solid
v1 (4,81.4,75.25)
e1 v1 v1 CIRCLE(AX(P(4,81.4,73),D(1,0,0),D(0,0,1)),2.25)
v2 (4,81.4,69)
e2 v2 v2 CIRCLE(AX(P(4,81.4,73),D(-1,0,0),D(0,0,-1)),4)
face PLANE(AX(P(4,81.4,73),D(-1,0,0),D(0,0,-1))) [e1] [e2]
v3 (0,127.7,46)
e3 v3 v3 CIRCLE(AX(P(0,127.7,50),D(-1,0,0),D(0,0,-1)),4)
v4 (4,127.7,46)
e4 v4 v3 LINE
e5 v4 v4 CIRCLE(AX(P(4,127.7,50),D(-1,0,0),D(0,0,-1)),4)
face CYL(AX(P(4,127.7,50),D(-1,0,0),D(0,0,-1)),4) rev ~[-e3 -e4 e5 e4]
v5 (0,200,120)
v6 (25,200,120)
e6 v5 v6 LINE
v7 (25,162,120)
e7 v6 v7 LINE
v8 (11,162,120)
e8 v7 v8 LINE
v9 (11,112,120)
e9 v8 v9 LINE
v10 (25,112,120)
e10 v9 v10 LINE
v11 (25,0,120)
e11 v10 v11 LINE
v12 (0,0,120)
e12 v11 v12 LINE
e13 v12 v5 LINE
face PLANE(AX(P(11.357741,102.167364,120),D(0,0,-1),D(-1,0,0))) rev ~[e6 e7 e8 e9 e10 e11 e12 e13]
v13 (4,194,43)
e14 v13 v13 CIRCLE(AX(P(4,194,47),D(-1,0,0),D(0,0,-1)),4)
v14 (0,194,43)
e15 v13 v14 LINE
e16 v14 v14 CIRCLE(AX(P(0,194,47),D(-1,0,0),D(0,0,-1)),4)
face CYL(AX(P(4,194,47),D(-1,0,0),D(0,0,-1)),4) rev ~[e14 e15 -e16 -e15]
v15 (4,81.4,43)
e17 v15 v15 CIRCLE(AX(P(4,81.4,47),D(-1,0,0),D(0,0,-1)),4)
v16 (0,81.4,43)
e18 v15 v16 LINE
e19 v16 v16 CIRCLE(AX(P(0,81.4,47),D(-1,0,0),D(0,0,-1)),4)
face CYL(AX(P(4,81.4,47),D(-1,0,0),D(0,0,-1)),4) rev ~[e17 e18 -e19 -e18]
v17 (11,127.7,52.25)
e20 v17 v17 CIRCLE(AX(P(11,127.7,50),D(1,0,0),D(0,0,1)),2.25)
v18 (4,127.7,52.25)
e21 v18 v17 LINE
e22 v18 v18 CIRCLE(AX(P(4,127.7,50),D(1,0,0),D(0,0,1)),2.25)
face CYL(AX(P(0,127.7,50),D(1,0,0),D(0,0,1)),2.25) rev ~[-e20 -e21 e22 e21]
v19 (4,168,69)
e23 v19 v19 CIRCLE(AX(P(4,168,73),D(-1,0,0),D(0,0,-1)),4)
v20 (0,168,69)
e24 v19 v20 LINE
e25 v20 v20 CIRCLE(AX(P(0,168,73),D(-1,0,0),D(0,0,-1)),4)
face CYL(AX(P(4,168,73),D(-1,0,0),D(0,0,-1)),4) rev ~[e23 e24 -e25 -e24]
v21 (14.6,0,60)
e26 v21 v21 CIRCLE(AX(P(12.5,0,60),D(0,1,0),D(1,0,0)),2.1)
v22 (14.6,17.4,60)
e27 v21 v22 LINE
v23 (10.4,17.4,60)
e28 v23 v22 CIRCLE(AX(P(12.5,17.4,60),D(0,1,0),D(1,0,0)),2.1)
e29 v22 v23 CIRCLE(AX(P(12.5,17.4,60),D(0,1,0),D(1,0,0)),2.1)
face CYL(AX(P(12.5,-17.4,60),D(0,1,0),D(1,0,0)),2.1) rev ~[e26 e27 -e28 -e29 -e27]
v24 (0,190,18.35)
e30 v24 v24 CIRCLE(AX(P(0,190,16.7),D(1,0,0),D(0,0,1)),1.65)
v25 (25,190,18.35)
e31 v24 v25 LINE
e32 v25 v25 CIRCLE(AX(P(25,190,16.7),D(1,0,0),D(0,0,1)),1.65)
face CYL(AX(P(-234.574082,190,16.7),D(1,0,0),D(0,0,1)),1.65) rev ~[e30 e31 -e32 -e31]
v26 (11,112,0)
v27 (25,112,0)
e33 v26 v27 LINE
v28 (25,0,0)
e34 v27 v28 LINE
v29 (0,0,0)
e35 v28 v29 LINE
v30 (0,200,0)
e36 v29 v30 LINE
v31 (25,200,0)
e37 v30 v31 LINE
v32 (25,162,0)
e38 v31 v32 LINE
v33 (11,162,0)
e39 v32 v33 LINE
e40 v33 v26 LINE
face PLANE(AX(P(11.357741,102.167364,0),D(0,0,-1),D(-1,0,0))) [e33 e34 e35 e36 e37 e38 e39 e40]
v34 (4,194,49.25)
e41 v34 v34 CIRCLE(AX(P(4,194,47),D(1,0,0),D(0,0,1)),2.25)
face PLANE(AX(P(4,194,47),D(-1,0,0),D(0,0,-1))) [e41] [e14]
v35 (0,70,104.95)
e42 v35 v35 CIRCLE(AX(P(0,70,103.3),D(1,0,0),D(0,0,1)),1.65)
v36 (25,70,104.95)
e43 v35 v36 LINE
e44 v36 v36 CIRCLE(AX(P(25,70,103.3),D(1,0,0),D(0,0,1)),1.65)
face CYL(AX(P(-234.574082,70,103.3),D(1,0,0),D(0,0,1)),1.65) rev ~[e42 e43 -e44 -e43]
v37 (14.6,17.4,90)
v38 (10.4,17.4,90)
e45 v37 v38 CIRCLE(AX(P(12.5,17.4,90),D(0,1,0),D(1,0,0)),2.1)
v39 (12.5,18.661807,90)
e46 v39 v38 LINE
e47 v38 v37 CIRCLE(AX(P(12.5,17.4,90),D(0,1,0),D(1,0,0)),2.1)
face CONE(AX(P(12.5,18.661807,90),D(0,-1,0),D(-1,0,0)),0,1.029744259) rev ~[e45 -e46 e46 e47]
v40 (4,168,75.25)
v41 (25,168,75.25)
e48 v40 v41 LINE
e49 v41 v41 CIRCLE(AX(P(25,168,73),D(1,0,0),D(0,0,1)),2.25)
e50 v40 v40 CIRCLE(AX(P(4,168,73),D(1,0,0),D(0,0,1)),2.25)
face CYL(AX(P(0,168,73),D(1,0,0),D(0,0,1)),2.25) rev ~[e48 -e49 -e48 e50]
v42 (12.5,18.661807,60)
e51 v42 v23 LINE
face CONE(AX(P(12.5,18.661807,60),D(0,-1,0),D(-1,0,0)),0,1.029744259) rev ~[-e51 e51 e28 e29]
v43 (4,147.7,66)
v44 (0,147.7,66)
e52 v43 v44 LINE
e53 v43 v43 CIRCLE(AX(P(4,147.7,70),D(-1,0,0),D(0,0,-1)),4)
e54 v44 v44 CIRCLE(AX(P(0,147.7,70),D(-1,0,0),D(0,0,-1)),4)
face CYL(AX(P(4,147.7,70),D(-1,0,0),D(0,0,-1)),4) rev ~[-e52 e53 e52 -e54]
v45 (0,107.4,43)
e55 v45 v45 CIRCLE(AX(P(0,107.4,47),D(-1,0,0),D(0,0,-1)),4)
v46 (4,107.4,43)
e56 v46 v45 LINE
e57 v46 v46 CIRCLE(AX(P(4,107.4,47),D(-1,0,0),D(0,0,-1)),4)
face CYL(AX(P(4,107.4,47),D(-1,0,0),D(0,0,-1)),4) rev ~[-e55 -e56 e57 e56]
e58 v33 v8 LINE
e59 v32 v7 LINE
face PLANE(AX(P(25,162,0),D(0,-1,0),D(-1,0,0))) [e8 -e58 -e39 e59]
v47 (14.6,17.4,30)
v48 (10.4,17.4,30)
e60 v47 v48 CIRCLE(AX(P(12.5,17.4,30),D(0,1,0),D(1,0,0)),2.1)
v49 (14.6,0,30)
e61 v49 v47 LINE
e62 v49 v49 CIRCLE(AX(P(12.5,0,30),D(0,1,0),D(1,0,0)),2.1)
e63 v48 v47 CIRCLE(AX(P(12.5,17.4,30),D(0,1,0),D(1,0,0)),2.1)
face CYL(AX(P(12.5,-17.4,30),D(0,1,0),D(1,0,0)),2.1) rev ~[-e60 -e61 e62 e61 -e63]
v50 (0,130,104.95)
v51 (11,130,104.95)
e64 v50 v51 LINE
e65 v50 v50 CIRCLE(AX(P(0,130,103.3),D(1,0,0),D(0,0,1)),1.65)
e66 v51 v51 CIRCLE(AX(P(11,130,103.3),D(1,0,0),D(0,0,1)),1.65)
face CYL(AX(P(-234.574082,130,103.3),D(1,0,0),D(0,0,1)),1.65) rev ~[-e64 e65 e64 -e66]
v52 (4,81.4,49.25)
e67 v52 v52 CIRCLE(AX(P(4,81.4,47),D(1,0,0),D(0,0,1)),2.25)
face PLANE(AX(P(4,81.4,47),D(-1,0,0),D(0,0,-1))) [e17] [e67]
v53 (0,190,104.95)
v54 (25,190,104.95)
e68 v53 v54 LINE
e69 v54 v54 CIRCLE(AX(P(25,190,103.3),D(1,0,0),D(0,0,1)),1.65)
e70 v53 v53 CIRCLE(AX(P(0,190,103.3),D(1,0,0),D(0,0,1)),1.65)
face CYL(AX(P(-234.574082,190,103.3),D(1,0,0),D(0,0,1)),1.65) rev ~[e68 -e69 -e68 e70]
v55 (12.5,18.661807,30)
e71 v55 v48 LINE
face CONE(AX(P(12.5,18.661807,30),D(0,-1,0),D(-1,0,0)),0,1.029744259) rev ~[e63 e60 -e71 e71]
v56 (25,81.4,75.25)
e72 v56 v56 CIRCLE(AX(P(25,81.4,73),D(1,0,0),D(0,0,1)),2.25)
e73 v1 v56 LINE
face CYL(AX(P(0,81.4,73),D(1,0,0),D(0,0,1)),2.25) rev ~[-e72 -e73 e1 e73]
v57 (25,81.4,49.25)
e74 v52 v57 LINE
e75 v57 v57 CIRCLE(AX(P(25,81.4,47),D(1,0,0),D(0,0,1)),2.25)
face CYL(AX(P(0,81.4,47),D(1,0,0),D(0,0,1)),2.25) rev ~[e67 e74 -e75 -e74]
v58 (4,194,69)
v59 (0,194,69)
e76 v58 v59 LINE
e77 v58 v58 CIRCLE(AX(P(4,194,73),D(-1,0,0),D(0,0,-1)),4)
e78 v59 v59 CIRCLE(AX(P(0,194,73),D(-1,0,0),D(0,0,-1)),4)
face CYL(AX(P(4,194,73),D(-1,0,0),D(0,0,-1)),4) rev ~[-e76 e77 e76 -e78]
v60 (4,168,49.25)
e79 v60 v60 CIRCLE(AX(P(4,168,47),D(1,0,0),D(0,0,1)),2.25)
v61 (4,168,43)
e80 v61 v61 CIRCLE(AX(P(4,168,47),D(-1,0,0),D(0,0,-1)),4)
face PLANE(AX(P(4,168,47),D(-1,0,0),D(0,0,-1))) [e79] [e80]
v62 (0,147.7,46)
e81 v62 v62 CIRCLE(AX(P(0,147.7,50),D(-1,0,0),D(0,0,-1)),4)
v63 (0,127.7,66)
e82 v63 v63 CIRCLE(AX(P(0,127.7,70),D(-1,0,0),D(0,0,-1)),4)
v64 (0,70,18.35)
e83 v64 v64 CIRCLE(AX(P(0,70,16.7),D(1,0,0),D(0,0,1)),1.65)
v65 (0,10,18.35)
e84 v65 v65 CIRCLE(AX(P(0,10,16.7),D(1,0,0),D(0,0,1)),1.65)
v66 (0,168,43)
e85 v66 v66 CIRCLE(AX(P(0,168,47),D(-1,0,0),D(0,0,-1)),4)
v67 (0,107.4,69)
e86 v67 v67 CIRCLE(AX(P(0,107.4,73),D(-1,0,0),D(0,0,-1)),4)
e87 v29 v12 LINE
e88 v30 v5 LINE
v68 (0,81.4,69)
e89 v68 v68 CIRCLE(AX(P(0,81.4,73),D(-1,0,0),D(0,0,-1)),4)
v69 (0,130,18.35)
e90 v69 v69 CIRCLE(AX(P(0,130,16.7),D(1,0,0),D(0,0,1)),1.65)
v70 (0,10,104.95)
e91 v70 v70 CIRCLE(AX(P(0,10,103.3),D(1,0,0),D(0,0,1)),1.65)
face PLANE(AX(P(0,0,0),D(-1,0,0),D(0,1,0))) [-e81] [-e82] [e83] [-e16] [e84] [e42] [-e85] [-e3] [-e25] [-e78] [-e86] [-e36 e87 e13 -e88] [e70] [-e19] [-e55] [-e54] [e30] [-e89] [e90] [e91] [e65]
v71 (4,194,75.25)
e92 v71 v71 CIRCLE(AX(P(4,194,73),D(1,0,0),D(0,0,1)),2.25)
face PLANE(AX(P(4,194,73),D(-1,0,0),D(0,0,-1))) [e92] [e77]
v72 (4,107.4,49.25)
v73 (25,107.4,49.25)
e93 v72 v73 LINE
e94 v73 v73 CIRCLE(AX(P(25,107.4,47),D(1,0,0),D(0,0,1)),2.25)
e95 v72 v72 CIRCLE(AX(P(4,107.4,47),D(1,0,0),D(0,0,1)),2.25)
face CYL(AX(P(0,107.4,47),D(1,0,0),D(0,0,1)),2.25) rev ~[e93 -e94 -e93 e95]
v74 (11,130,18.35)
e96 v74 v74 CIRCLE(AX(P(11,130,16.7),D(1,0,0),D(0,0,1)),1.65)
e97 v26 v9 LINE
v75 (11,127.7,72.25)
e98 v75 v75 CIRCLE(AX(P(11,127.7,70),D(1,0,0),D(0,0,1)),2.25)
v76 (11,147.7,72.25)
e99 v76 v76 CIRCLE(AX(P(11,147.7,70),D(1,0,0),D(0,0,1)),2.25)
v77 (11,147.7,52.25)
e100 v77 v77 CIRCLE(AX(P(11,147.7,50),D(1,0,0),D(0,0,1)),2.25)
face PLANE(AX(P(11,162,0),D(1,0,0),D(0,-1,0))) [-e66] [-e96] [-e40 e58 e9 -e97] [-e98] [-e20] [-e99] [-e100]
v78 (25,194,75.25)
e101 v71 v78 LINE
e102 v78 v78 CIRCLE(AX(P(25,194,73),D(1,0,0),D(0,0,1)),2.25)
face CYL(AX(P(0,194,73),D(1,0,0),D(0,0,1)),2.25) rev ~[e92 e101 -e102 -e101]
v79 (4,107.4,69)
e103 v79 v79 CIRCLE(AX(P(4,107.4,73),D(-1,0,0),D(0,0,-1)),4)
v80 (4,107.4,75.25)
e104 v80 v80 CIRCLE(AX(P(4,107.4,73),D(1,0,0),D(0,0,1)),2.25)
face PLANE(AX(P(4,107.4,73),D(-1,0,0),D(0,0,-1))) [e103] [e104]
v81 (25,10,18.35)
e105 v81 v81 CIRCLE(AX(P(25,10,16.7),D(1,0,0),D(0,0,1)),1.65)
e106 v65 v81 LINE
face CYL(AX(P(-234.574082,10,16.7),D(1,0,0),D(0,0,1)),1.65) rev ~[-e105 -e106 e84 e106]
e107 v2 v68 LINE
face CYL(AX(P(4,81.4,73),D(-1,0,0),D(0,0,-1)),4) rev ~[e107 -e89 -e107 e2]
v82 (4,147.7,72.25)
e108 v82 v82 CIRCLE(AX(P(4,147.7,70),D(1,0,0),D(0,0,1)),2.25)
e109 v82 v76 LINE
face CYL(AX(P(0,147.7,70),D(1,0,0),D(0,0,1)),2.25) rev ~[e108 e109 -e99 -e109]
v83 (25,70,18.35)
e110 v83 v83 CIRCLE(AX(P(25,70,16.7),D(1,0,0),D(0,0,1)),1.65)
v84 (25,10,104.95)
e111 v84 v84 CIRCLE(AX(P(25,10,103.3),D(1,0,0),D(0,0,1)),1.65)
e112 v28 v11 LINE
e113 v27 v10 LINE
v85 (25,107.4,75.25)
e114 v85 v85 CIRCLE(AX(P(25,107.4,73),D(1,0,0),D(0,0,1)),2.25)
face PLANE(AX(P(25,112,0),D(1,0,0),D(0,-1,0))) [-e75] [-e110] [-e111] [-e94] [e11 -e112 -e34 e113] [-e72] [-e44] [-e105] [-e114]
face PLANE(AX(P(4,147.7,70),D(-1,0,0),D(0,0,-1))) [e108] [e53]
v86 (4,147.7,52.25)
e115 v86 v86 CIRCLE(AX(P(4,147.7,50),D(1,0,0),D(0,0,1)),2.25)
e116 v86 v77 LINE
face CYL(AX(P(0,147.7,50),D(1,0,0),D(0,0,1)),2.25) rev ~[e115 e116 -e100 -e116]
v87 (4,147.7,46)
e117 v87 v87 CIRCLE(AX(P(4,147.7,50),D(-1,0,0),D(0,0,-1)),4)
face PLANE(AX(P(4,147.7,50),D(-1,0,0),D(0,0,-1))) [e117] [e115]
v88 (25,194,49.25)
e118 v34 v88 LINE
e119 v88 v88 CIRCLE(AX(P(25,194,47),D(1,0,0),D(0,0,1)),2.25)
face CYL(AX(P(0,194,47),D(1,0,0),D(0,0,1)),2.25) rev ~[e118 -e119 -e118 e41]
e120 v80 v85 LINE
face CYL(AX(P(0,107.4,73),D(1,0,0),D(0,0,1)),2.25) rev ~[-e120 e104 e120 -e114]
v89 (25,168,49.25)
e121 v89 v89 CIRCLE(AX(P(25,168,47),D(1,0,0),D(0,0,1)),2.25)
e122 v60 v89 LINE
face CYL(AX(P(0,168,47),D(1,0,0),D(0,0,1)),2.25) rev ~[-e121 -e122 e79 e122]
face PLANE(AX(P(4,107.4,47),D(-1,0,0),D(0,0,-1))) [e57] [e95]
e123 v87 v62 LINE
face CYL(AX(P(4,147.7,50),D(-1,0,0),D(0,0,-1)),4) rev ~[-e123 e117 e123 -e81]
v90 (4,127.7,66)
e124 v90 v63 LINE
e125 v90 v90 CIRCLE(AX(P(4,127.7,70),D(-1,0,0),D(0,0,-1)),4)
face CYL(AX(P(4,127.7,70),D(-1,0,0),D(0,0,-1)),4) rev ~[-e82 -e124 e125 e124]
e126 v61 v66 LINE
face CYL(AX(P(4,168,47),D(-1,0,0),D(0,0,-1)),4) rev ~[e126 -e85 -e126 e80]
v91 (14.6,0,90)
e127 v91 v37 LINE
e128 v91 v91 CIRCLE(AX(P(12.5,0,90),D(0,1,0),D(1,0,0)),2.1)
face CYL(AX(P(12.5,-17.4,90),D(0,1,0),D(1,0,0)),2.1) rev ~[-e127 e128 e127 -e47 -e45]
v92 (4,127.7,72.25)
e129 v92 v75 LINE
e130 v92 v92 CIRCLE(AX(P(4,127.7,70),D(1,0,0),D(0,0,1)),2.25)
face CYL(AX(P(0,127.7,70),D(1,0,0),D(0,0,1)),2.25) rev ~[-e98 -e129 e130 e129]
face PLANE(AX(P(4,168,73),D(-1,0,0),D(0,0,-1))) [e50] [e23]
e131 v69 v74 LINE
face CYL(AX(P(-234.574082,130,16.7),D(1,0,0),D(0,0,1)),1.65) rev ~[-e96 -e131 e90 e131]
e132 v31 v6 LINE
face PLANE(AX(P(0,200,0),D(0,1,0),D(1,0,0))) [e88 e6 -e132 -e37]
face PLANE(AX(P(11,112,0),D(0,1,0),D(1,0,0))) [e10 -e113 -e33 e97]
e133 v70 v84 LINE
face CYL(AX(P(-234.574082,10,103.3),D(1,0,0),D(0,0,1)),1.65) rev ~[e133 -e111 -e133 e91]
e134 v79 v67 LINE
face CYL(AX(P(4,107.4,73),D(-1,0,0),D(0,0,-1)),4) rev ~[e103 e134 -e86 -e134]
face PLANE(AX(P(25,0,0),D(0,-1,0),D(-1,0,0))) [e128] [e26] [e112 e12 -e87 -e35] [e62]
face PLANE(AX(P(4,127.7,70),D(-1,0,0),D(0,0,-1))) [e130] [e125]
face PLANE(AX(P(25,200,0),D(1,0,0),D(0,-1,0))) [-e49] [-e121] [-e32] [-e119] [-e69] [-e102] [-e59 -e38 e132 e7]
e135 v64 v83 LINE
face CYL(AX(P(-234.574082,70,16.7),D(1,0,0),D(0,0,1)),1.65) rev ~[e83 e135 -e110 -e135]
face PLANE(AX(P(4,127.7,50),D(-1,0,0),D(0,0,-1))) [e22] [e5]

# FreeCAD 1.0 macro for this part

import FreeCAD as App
import Part
import Sketcher

V = App.Vector


def add_polygon(sketch, points):
    """Adds a closed chain of lines whose ends are joined by coincident constraints."""
    first, n = sketch.GeometryCount, len(points)
    for a, b in zip(points, points[1:] + points[:1]):
        sketch.addGeometry(Part.LineSegment(App.Vector(*a, 0), App.Vector(*b, 0)), False)
    for i in range(n):
        sketch.addConstraint(Sketcher.Constraint("Coincident", first + i, 2, first + (i + 1) % n, 1))

doc = App.newDocument("Part")
body = doc.addObject("PartDesign::Body", "Body")

# Sketch on XY plane
sketch1 = body.newObject("Sketcher::SketchObject", "Sketch")
sketch1.AttachmentSupport = (doc.getObject("XY_Plane"), [""])
sketch1.MapMode = "FlatFace"
add_polygon(sketch1, [(0, 200), (0, 0), (25, 0), (25, 112), (11, 112), (11, 162), (25, 162), (25, 200)])  # lines 0-7
sketch1.addConstraint([
    Sketcher.Constraint("Vertical", 0),
    Sketcher.Constraint("Horizontal", 1),
    Sketcher.Constraint("Vertical", 2),
    Sketcher.Constraint("Horizontal", 3),
    Sketcher.Constraint("Vertical", 4),
    Sketcher.Constraint("Horizontal", 5),
    Sketcher.Constraint("Vertical", 6),
    Sketcher.Constraint("Horizontal", 7),
    Sketcher.Constraint("Coincident", 0, 2, -1, 1),
    Sketcher.Constraint("Vertical", 2, 2, 5, 2),
    Sketcher.Constraint("DistanceX", 1, 1, 1, 2, 25.0),
    Sketcher.Constraint("DistanceX", 3, 2, 3, 1, 14.0),
    Sketcher.Constraint("DistanceY", 0, 2, 0, 1, 200.0),
    Sketcher.Constraint("DistanceY", 2, 1, 2, 2, 112.0),
    Sketcher.Constraint("DistanceY", 4, 1, 4, 2, 50.0),
])
pad1 = body.newObject("PartDesign::Pad", "Pad")
pad1.Profile = sketch1
pad1.Length = 120

# Sketch on YZ plane
sketch2 = body.newObject("Sketcher::SketchObject", "Sketch001")
sketch2.AttachmentSupport = (doc.getObject("YZ_Plane"), [""])
sketch2.MapMode = "FlatFace"
sketch2.addGeometry([
    Part.Circle(V(194, 73, 0), V(0, 0, 1), 2.2),  # 0
    Part.Circle(V(168, 73, 0), V(0, 0, 1), 2.2),  # 1
    Part.Circle(V(147.7, 70, 0), V(0, 0, 1), 2.2),  # 2
    Part.Circle(V(127.7, 70, 0), V(0, 0, 1), 2.2),  # 3
    Part.Circle(V(107.4, 73, 0), V(0, 0, 1), 2.2),  # 4
    Part.Circle(V(81.4, 73, 0), V(0, 0, 1), 2.2),  # 5
    Part.Circle(V(81.4, 47, 0), V(0, 0, 1), 2.2),  # 6
    Part.Circle(V(107.4, 47, 0), V(0, 0, 1), 2.2),  # 7
    Part.Circle(V(127.7, 50, 0), V(0, 0, 1), 2.2),  # 8
    Part.Circle(V(147.7, 50, 0), V(0, 0, 1), 2.2),  # 9
    Part.Circle(V(168, 47, 0), V(0, 0, 1), 2.2),  # 10
    Part.Circle(V(194, 47, 0), V(0, 0, 1), 2.2),  # 11
], False)
sketch2.addConstraint([
    Sketcher.Constraint("Equal", 0, 1),
    Sketcher.Constraint("Equal", 1, 2),
    Sketcher.Constraint("Equal", 2, 3),
    Sketcher.Constraint("Equal", 3, 4),
    Sketcher.Constraint("Equal", 4, 5),
    Sketcher.Constraint("Equal", 5, 6),
    Sketcher.Constraint("Equal", 6, 7),
    Sketcher.Constraint("Equal", 7, 8),
    Sketcher.Constraint("Equal", 8, 9),
    Sketcher.Constraint("Equal", 9, 10),
    Sketcher.Constraint("Equal", 10, 11),
    Sketcher.Constraint("Horizontal", 0, 3, 1, 3),
    Sketcher.Constraint("Horizontal", 2, 3, 3, 3),
    Sketcher.Constraint("Horizontal", 1, 3, 4, 3),
    Sketcher.Constraint("Horizontal", 4, 3, 5, 3),
    Sketcher.Constraint("Horizontal", 6, 3, 7, 3),
    Sketcher.Constraint("Horizontal", 8, 3, 9, 3),
    Sketcher.Constraint("Horizontal", 7, 3, 10, 3),
    Sketcher.Constraint("Horizontal", 10, 3, 11, 3),
    Sketcher.Constraint("Vertical", 5, 3, 6, 3),
    Sketcher.Constraint("Vertical", 4, 3, 7, 3),
    Sketcher.Constraint("Vertical", 3, 3, 8, 3),
    Sketcher.Constraint("Vertical", 2, 3, 9, 3),
    Sketcher.Constraint("Vertical", 1, 3, 10, 3),
    Sketcher.Constraint("Vertical", 0, 3, 11, 3),
    Sketcher.Constraint("Diameter", 0, 4.5),
    Sketcher.Constraint("DistanceX", -1, 1, 0, 3, 194.0),
    Sketcher.Constraint("DistanceY", -1, 1, 0, 3, 73.0),
    Sketcher.Constraint("DistanceX", -1, 1, 1, 3, 168.0),
    Sketcher.Constraint("DistanceY", -1, 1, 2, 3, 70.0),
    Sketcher.Constraint("DistanceY", -1, 1, 6, 3, 47.0),
    Sketcher.Constraint("DistanceY", -1, 1, 8, 3, 50.0),
    Sketcher.Constraint("DistanceX", 3, 3, 2, 3, 20.0),
    Sketcher.Constraint("DistanceX", 5, 3, 4, 3, 26.0),
    Sketcher.Constraint("DistanceX", -1, 1, 2, 3, 147.7),
    Sketcher.Constraint("DistanceX", -1, 1, 4, 3, 107.4),
])
doc.recompute()
hole = body.newObject("PartDesign::Hole", "Hole")
hole.Profile = sketch2
hole.ThreadType = "None"
hole.Diameter = 4.5
hole.DepthType = "ThroughAll"
hole.HoleCutType = "Counterbore"
hole.HoleCutDiameter = 8
hole.HoleCutDepth = 4
hole.Reversed = True

# Sketch on YZ plane
sketch3 = body.newObject("Sketcher::SketchObject", "Sketch002")
sketch3.AttachmentSupport = (doc.getObject("YZ_Plane"), [""])
sketch3.MapMode = "FlatFace"
sketch3.addGeometry([
    Part.Circle(V(190, 16.7, 0), V(0, 0, 1), 1.6),  # 0
    Part.Circle(V(130, 16.7, 0), V(0, 0, 1), 1.6),  # 1
    Part.Circle(V(70, 16.7, 0), V(0, 0, 1), 1.6),  # 2
    Part.Circle(V(10, 16.7, 0), V(0, 0, 1), 1.6),  # 3
    Part.Circle(V(10, 103.3, 0), V(0, 0, 1), 1.6),  # 4
    Part.Circle(V(70, 103.3, 0), V(0, 0, 1), 1.6),  # 5
    Part.Circle(V(130, 103.3, 0), V(0, 0, 1), 1.6),  # 6
    Part.Circle(V(190, 103.3, 0), V(0, 0, 1), 1.6),  # 7
], False)
sketch3.addConstraint([
    Sketcher.Constraint("Equal", 0, 1),
    Sketcher.Constraint("Equal", 1, 2),
    Sketcher.Constraint("Equal", 2, 3),
    Sketcher.Constraint("Equal", 3, 4),
    Sketcher.Constraint("Equal", 4, 5),
    Sketcher.Constraint("Equal", 5, 6),
    Sketcher.Constraint("Equal", 6, 7),
    Sketcher.Constraint("Horizontal", 0, 3, 1, 3),
    Sketcher.Constraint("Horizontal", 1, 3, 2, 3),
    Sketcher.Constraint("Horizontal", 2, 3, 3, 3),
    Sketcher.Constraint("Horizontal", 4, 3, 5, 3),
    Sketcher.Constraint("Horizontal", 5, 3, 6, 3),
    Sketcher.Constraint("Horizontal", 6, 3, 7, 3),
    Sketcher.Constraint("Vertical", 3, 3, 4, 3),
    Sketcher.Constraint("Vertical", 2, 3, 5, 3),
    Sketcher.Constraint("Vertical", 1, 3, 6, 3),
    Sketcher.Constraint("Vertical", 0, 3, 7, 3),
    Sketcher.Constraint("Diameter", 0, 3.3),
    Sketcher.Constraint("DistanceX", -1, 1, 0, 3, 190.0),
    Sketcher.Constraint("DistanceX", -1, 1, 1, 3, 130.0),
    Sketcher.Constraint("DistanceX", -1, 1, 2, 3, 70.0),
    Sketcher.Constraint("DistanceX", -1, 1, 3, 3, 10.0),
    Sketcher.Constraint("DistanceY", -1, 1, 0, 3, 16.7),
    Sketcher.Constraint("DistanceY", -1, 1, 4, 3, 103.3),
])
doc.recompute()
hole2 = body.newObject("PartDesign::Hole", "Hole001")
hole2.Profile = sketch3
hole2.ThreadType = "None"
hole2.Diameter = 3.3
hole2.DepthType = "ThroughAll"
hole2.Reversed = True

# Sketch on XZ plane
sketch4 = body.newObject("Sketcher::SketchObject", "Sketch003")
sketch4.AttachmentSupport = (doc.getObject("XZ_Plane"), [""])
sketch4.MapMode = "FlatFace"
sketch4.addGeometry([
    Part.Circle(V(12.5, 90, 0), V(0, 0, 1), 2.1),
    Part.Circle(V(12.5, 60, 0), V(0, 0, 1), 2.1),
    Part.Circle(V(12.5, 30, 0), V(0, 0, 1), 2.1),
], False)
sketch4.addConstraint([
    Sketcher.Constraint("Equal", 0, 1),
    Sketcher.Constraint("Equal", 1, 2),
    Sketcher.Constraint("Vertical", 0, 3, 1, 3),
    Sketcher.Constraint("Vertical", 1, 3, 2, 3),
    Sketcher.Constraint("Diameter", 0, 4.2),
    Sketcher.Constraint("DistanceY", -1, 1, 0, 3, 90.0),
    Sketcher.Constraint("DistanceY", -1, 1, 1, 3, 60.0),
    Sketcher.Constraint("DistanceY", -1, 1, 2, 3, 30.0),
    Sketcher.Constraint("DistanceX", -1, 1, 0, 3, 12.5),
])
doc.recompute()
hole3 = body.newObject("PartDesign::Hole", "Hole002")
hole3.Profile = sketch4
hole3.ThreadType = "None"
hole3.Diameter = 4.2
hole3.DepthType = "Dimension"
hole3.Depth = 17.4
hole3.DrillPoint = "Angled"
hole3.DrillPointAngle = 118

doc.recompute()
